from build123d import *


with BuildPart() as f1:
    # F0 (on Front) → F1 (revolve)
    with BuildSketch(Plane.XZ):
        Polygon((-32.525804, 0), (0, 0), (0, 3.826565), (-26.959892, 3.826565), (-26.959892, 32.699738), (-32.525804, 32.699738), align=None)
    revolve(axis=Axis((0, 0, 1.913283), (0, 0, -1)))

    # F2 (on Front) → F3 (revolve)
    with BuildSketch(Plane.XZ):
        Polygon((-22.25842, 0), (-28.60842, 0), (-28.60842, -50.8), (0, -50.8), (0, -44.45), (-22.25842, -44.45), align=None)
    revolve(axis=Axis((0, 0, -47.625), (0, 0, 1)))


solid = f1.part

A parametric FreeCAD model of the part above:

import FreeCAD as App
import Part
import Sketcher
from FreeCAD import Vector
Q = App.Units.Quantity


def add_polygon(sketch, points):
    """Adds a closed chain of lines whose ends are joined by coincident constraints."""
    first, n = sketch.GeometryCount, len(points)
    for a, b in zip(points, points[1:] + points[:1]):
        sketch.addGeometry(Part.LineSegment(App.Vector(*a, 0), App.Vector(*b, 0)), False)
    for i in range(n):
        sketch.addConstraint(Sketcher.Constraint("Coincident", first + i, 2, first + (i + 1) % n, 1))

doc = App.newDocument("Part")
body = doc.addObject("PartDesign::Body", "Body")

# Sketch on XZ plane
sketch1 = doc.addObject("Sketcher::SketchObject", "Sketch")
body.addObject(sketch1)
sketch1.AttachmentSupport = (doc.XZ_Plane, [""])
sketch1.MapMode = "FlatFace"
add_polygon(sketch1, [(-32.5, 0), (0, 0), (0, 3.8), (-27, 3.8), (-27, 32.7), (-32.5, 32.7)])  # lines 0-5
sketch1.addConstraint([
    Sketcher.Constraint("Horizontal", 0),
    Sketcher.Constraint("Vertical", 1),
    Sketcher.Constraint("Horizontal", 2),
    Sketcher.Constraint("Vertical", 3),
    Sketcher.Constraint("Horizontal", 4),
    Sketcher.Constraint("Vertical", 5),
    Sketcher.Constraint("Coincident", 0, 2, -1, 1),
    Sketcher.Constraint("DistanceX", 2, 2, 2, 1, 26.959892),
    Sketcher.Constraint("DistanceY", 5, 2, 5, 1, 32.699738),
    Sketcher.Constraint("DistanceX", 0, 1, 0, 2, 32.525804),
    Sketcher.Constraint("DistanceY", 1, 1, 1, 2, 3.826565),
])
revolution = doc.addObject("PartDesign::Revolution", "Revolution")
body.addObject(revolution)
revolution.Profile = sketch1
revolution.ReferenceAxis = (sketch1, ["V_Axis"])
revolution.Angle = 360

# Sketch on XZ plane
sketch2 = doc.addObject("Sketcher::SketchObject", "Sketch001")
body.addObject(sketch2)
sketch2.AttachmentSupport = (doc.XZ_Plane, [""])
sketch2.MapMode = "FlatFace"
add_polygon(sketch2, [(-22, 0), (-29, 0), (-29, -51), (0, -51), (0, -44), (-22, -44)])  # lines 0-5
sketch2.addConstraint([
    Sketcher.Constraint("Horizontal", 0),
    Sketcher.Constraint("Vertical", 1),
    Sketcher.Constraint("Horizontal", 2),
    Sketcher.Constraint("Vertical", 3),
    Sketcher.Constraint("Horizontal", 4),
    Sketcher.Constraint("Vertical", 5),
    Sketcher.Constraint("PointOnObject", 0, 2, -1),
    Sketcher.Constraint("PointOnObject", 2, 2, -2),
    Sketcher.Constraint("Equal", 0, 3),
    Sketcher.Constraint("DistanceY", 1, 2, 1, 1, Q("2 in")),
    Sketcher.Constraint("DistanceX", 0, 2, 0, 1, Q("0.25 in")),
    Sketcher.Constraint("DistanceX", 2, 1, 2, 2, 28.60842),
])
revolution2 = doc.addObject("PartDesign::Revolution", "Revolution001")
body.addObject(revolution2)
revolution2.Profile = sketch2
revolution2.ReferenceAxis = (sketch2, ["V_Axis"])
revolution2.Angle = 360

doc.recompute()
